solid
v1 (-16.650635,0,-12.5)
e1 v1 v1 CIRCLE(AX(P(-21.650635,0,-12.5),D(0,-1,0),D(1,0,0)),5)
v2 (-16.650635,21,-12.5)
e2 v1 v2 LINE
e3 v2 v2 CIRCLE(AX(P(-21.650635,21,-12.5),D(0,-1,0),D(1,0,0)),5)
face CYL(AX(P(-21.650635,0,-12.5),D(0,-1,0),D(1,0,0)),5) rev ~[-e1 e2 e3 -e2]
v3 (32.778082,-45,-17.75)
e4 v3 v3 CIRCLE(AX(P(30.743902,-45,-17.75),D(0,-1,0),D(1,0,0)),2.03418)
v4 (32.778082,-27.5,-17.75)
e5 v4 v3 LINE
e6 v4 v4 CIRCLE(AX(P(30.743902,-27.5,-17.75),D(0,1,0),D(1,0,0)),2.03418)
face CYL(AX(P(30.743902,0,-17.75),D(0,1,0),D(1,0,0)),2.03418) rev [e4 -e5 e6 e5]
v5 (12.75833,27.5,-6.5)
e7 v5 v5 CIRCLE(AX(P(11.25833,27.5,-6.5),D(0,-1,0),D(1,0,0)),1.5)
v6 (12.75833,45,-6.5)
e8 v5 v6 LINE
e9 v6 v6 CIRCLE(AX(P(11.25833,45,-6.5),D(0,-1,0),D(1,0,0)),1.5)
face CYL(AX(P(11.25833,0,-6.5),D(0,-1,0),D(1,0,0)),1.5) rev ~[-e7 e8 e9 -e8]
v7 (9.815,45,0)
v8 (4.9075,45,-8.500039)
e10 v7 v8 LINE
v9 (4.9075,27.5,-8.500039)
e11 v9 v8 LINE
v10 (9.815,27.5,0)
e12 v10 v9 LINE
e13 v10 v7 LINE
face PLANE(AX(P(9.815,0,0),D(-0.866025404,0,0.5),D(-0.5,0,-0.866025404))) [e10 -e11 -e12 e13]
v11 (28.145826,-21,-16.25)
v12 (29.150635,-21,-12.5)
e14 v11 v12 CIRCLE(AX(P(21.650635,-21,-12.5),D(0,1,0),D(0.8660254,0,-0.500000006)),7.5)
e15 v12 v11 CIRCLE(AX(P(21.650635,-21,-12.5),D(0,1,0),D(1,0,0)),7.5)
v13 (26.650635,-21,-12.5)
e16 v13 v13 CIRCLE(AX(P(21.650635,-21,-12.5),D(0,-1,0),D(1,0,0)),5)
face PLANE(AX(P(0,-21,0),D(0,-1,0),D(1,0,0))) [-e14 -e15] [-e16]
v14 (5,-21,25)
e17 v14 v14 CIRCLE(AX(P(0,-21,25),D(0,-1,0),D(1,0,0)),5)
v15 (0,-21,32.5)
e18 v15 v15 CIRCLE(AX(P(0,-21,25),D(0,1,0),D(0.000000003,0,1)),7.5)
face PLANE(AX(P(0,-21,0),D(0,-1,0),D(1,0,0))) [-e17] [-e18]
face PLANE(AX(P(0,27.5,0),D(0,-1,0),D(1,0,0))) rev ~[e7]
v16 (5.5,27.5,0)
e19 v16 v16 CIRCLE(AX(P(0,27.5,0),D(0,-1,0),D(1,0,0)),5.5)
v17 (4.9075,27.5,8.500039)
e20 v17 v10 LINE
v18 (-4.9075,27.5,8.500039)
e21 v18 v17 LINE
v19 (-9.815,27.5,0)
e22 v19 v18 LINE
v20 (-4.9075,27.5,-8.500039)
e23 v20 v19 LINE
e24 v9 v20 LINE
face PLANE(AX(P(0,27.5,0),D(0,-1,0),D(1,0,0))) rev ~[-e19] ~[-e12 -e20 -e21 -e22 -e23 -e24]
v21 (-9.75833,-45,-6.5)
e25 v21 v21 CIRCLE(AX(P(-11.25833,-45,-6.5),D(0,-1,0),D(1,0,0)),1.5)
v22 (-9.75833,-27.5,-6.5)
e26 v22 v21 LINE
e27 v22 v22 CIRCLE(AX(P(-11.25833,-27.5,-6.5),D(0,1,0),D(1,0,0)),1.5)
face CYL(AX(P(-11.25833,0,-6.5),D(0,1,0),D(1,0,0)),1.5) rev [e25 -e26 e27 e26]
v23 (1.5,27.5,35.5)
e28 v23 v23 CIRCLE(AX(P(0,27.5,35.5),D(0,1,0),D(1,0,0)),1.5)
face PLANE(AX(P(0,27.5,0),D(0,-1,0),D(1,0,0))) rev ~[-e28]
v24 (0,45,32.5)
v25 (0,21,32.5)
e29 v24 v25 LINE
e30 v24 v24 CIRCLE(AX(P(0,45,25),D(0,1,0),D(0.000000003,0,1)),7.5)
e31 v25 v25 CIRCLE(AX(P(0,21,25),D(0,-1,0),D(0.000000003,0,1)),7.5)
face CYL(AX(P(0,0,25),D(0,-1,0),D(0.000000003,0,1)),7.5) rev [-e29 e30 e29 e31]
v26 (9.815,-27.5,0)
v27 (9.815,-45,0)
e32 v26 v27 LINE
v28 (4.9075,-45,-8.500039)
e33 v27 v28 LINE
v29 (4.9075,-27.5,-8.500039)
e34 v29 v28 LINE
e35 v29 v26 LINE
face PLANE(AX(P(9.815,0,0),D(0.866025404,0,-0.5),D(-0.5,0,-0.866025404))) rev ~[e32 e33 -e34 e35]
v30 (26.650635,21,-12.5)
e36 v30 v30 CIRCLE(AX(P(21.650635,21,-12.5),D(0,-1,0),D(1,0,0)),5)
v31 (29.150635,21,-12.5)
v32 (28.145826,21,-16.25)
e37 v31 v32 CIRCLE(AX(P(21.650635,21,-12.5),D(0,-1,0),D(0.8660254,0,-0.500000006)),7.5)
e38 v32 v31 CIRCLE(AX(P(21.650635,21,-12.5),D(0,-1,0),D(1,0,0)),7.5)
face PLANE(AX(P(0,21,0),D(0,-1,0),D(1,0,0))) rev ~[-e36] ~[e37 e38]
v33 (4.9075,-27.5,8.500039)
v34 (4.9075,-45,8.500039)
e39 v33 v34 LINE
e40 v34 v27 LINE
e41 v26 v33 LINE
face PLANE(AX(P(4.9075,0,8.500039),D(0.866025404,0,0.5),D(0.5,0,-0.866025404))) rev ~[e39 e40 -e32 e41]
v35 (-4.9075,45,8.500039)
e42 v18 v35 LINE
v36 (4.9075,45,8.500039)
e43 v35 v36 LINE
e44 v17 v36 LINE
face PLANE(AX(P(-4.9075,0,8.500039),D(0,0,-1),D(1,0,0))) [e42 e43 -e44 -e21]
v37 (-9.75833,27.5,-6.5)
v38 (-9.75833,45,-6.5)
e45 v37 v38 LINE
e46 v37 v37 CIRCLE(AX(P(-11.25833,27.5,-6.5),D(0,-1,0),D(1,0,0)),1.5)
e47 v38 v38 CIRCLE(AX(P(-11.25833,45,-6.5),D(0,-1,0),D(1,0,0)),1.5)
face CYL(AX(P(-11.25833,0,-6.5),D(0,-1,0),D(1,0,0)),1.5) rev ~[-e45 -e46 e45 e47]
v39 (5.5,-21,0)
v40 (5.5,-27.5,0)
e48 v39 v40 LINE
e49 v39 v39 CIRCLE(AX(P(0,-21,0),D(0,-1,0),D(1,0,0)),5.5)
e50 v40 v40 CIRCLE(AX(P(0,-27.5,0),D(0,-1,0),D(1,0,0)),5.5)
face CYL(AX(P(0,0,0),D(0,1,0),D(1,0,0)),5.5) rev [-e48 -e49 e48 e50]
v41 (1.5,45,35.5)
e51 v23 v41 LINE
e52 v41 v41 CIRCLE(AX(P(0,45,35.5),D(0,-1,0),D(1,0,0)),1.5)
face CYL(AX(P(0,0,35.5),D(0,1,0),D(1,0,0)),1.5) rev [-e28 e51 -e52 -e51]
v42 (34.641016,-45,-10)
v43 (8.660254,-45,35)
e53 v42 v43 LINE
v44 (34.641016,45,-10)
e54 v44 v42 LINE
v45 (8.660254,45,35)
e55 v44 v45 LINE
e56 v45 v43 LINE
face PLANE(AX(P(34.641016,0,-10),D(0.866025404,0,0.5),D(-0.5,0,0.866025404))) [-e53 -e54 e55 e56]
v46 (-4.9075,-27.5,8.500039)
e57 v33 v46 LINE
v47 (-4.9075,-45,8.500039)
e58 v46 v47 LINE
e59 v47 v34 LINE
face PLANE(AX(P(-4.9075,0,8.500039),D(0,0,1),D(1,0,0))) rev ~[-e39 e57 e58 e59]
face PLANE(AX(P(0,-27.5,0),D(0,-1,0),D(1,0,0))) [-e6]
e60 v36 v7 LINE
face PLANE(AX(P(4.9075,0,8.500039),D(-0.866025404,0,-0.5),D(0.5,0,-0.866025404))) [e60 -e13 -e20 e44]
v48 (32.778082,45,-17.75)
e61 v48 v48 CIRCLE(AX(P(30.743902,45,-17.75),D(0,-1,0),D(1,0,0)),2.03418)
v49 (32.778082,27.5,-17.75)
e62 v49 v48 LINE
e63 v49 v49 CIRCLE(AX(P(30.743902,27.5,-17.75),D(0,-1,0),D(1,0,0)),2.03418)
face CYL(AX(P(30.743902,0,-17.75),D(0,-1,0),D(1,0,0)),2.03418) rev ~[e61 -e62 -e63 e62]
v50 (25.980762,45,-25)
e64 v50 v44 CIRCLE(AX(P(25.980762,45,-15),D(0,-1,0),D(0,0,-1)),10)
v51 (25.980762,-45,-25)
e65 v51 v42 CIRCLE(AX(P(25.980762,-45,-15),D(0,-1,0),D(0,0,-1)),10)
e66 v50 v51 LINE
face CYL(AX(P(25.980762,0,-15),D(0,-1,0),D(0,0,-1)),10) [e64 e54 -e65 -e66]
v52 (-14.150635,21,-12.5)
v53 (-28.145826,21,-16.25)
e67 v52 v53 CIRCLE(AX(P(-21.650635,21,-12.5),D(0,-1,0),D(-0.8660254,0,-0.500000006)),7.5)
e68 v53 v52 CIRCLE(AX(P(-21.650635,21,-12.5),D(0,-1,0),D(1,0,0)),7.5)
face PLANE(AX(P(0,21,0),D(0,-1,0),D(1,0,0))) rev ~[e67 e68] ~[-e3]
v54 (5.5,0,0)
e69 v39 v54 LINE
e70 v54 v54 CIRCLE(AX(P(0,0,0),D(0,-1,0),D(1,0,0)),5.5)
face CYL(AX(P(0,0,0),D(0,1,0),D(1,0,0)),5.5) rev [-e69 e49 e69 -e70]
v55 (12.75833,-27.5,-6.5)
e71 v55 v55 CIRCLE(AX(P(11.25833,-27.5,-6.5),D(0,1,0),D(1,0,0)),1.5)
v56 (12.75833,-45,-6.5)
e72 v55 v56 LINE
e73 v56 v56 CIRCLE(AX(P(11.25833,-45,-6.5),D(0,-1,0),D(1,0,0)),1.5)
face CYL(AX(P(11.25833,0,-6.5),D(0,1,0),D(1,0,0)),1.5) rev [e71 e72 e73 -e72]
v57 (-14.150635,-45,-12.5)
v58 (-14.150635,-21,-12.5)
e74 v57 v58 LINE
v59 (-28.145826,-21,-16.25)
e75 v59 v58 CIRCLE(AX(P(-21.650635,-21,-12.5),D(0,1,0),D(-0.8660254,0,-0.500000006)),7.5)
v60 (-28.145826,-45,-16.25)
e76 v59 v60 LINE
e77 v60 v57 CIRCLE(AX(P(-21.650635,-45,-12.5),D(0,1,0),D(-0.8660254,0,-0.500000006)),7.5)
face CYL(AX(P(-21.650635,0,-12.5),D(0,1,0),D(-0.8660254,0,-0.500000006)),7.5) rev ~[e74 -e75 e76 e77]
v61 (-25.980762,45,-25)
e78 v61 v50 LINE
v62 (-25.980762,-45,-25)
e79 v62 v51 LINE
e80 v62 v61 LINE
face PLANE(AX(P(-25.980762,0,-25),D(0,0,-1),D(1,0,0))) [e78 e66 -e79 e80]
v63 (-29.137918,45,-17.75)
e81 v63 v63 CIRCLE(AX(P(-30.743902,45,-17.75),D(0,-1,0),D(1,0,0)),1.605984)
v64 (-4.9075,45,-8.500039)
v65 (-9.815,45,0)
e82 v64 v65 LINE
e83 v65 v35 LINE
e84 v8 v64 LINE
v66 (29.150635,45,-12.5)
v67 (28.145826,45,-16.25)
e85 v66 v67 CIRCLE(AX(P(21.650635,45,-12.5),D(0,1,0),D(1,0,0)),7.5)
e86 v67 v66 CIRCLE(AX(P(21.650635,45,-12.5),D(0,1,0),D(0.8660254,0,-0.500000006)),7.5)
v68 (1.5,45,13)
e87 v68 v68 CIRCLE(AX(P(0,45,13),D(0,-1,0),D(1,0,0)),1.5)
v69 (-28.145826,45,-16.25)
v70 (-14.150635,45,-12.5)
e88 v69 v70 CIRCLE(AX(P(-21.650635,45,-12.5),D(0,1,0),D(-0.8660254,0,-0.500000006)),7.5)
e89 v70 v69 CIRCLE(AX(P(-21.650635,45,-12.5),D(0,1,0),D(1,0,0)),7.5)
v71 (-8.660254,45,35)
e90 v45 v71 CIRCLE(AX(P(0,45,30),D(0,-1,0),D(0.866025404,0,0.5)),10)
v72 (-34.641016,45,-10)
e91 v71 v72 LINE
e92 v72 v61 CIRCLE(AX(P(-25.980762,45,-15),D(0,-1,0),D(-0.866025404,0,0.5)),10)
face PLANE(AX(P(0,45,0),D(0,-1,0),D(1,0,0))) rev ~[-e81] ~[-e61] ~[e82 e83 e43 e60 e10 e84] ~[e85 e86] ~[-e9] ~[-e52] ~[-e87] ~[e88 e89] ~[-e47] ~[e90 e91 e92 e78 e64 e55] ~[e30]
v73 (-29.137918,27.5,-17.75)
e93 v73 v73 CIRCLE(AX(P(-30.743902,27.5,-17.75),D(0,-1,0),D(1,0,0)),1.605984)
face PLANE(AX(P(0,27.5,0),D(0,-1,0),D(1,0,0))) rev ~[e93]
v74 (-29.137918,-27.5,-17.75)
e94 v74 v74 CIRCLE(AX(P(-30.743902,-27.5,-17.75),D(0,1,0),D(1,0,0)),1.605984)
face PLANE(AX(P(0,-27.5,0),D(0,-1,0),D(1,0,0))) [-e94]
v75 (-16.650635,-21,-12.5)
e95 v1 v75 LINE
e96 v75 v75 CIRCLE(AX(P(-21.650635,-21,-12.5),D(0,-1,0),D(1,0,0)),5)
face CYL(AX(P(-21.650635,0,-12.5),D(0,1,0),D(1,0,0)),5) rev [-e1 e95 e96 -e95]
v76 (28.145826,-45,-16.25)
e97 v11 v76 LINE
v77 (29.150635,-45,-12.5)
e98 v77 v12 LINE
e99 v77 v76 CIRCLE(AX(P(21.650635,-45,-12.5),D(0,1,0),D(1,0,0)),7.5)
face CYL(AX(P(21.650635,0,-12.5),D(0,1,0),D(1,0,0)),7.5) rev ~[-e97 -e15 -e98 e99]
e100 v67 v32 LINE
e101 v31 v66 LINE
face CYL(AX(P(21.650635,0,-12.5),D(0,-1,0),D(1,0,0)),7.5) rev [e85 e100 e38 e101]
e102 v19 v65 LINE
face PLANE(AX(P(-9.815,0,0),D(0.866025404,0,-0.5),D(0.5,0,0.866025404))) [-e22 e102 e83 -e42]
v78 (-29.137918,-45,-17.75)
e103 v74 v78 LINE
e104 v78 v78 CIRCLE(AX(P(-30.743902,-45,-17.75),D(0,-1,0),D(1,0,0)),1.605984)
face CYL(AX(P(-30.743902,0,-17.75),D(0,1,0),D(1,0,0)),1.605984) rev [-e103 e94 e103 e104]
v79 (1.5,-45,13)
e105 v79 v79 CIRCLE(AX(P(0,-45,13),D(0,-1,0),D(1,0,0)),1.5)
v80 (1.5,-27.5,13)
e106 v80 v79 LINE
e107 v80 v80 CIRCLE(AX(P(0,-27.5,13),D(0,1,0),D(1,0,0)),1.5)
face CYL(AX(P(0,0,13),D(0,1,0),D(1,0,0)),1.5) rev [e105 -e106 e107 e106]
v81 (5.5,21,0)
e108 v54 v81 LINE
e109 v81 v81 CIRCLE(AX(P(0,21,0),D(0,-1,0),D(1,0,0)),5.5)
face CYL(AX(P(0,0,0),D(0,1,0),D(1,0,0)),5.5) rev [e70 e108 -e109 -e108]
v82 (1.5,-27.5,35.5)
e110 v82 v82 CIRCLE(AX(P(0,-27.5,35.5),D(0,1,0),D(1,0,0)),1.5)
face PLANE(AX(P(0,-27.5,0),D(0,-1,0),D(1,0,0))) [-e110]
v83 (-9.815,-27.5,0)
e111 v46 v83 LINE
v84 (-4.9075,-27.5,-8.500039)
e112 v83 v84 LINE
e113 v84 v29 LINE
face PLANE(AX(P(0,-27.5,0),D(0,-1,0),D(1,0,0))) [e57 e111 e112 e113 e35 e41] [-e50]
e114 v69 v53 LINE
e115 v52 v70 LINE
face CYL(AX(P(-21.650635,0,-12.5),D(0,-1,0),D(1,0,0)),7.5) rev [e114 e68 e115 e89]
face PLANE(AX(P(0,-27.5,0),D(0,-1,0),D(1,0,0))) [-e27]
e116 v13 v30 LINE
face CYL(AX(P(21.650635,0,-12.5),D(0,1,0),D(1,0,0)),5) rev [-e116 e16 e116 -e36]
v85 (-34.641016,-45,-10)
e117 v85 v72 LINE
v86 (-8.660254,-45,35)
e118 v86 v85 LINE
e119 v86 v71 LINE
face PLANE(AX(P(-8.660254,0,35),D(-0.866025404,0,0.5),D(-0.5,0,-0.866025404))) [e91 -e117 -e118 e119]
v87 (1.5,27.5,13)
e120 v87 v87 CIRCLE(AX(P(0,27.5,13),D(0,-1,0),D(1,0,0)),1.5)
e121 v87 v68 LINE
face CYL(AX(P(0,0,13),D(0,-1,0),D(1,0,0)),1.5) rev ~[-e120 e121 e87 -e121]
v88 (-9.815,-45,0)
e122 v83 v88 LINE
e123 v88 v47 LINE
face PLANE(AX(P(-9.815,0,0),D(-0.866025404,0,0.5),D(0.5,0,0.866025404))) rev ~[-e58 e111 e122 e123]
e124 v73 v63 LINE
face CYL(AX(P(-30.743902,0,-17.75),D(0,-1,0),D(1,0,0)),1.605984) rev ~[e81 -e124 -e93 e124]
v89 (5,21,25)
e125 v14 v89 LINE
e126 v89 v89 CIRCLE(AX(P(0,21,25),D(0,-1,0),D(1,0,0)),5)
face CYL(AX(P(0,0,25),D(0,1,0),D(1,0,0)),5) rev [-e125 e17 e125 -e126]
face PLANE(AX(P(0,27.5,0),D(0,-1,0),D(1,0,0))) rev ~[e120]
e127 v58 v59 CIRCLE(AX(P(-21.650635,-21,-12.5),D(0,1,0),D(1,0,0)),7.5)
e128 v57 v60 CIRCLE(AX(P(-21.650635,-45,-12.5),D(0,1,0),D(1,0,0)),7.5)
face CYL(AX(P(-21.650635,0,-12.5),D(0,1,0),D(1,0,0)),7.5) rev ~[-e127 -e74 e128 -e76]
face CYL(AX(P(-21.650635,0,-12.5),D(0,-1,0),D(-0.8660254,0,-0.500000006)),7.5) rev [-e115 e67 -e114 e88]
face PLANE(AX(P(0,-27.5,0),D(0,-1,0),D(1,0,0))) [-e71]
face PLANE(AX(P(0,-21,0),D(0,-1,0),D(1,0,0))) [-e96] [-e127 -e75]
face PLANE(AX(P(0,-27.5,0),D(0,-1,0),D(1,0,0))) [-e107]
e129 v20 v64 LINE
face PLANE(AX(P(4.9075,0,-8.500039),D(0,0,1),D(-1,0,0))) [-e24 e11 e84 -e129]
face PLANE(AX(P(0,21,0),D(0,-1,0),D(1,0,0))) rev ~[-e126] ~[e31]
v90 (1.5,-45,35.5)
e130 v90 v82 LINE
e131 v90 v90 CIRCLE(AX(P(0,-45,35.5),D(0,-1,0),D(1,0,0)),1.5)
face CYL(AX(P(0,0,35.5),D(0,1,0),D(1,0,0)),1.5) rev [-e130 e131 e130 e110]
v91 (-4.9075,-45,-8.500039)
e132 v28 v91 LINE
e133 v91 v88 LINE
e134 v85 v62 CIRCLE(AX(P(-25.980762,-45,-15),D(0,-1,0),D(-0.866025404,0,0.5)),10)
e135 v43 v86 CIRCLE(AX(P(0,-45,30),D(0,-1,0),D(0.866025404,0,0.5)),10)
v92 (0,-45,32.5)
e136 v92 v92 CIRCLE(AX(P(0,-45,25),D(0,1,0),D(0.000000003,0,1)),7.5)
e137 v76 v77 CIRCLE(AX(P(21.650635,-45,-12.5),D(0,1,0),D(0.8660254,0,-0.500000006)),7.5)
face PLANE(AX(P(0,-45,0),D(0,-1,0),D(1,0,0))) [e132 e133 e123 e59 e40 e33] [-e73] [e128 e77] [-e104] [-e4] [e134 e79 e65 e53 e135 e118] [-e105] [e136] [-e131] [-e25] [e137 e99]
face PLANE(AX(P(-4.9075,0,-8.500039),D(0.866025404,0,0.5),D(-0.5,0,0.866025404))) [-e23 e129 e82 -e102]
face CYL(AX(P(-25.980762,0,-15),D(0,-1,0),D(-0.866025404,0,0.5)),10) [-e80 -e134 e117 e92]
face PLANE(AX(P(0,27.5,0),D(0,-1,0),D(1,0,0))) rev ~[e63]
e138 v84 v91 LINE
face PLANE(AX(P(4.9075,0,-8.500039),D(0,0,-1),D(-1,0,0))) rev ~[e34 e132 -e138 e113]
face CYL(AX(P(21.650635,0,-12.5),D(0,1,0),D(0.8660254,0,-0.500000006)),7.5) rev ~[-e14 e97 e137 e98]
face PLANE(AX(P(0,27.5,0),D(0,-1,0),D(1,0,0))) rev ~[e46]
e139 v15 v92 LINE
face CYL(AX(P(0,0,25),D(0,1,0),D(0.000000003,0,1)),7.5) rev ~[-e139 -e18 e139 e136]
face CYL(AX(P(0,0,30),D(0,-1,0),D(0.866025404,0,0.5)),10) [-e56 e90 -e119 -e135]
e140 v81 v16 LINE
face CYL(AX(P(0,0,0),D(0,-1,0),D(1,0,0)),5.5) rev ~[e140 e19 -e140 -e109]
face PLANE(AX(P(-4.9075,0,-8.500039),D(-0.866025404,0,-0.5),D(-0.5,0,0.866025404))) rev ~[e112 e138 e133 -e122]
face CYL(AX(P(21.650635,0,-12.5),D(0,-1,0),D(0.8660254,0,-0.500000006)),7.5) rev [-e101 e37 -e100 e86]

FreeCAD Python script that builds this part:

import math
import FreeCAD as App
import Part
import Sketcher
from FreeCAD import Vector
Q = App.Units.Quantity


def add_polygon(sketch, points):
    """Adds a closed chain of lines whose ends are joined by coincident constraints."""
    first, n = sketch.GeometryCount, len(points)
    for a, b in zip(points, points[1:] + points[:1]):
        sketch.addGeometry(Part.LineSegment(App.Vector(*a, 0), App.Vector(*b, 0)), False)
    for i in range(n):
        sketch.addConstraint(Sketcher.Constraint("Coincident", first + i, 2, first + (i + 1) % n, 1))

doc = App.newDocument("Part")
params = doc.addObject("Spreadsheet::Sheet", "Params")
for row, (alias, value) in enumerate([
    ("sketch1_diameter", "10 mm"),
    ("sketch1_diameter2", "11 mm"),
    ("sketch1_radius", "10 mm"),
    ("sketch1_radius2", "3 mm"),
    ("pad1_length", "42 mm"),
    ("sketch2_diameter", "11 mm"),
    ("sketch2_diameter2", "15 mm"),
    ("sketch2_radius", "10 mm"),
    ("pad2_length", "55 mm"),
    ("sketch3_diameter", "3 mm"),
    ("sketch3_diameter2", "15 mm"),
    ("sketch3_radius", "10 mm"),
    ("pad3_length", "90 mm"),
], start=1):
    params.set(f"A{row}", alias)
    params.set(f"B{row}", "=" + value)
    params.setAlias(f"B{row}", alias)

body = doc.addObject("PartDesign::Body", "Body")

# Sketch on XZ plane
sketch1 = body.newObject("Sketcher::SketchObject", "Sketch")
sketch1.AttachmentSupport = (doc.getObject("XZ_Plane"), [""])
sketch1.MapMode = "FlatFace"
sketch1.addGeometry([
    Part.LineSegment(Vector(-26, -25, 0), Vector(26, -25, 0)),  # 0
    Part.ArcOfCircle(Part.Circle(Vector(26, -15, 0), Vector(0, 0, 1), 10), math.radians(-90), math.radians(30)),  # 1
    Part.LineSegment(Vector(34.6, -10, 0), Vector(8.7, 35, 0)),  # 2
    Part.ArcOfCircle(Part.Circle(Vector(0, 30, 0), Vector(0, 0, 1), 10), math.radians(30), math.radians(150)),  # 3
    Part.LineSegment(Vector(-8.7, 35, 0), Vector(-34.6, -10, 0)),  # 4
    Part.ArcOfCircle(Part.Circle(Vector(-26, -15, 0), Vector(0, 0, 1), 10), math.radians(150), math.radians(270)),  # 5
    Part.ArcOfCircle(Part.Circle(Vector(-30.7, -17.8, 0), Vector(0, 0, 1), 3), math.radians(0), math.radians(30)),  # 6
    Part.ArcOfCircle(Part.Circle(Vector(-30.7, -17.8, 0), Vector(0, 0, 1), 3), math.radians(30), math.radians(360)),  # 7
    Part.Circle(Vector(-21.7, -12.5, 0), Vector(0, 0, 1), 5),  # 8
    Part.ArcOfCircle(Part.Circle(Vector(30.7, -17.8, 0), Vector(0, 0, 1), 3), math.radians(0), math.radians(150)),  # 9
    Part.ArcOfCircle(Part.Circle(Vector(30.7, -17.8, 0), Vector(0, 0, 1), 3), math.radians(150), math.radians(360)),  # 10
    Part.Circle(Vector(21.7, -12.5, 0), Vector(0, 0, 1), 5),  # 11
    Part.Circle(Vector(0, 0, 0), Vector(0, 0, 1), 5.5),  # 12
    Part.ArcOfCircle(Part.Circle(Vector(0, 35.5, 0), Vector(0, 0, 1), 3), math.radians(0), math.radians(270)),  # 13
    Part.ArcOfCircle(Part.Circle(Vector(0, 35.5, 0), Vector(0, 0, 1), 3), math.radians(-90), math.radians(0)),  # 14
    Part.Circle(Vector(0, 25, 0), Vector(0, 0, 1), 5),  # 15
], False)
sketch1.addConstraint([
    Sketcher.Constraint("Tangent", 0, 2, 1, 1),
    Sketcher.Constraint("Tangent", 1, 2, 2, 1),
    Sketcher.Constraint("Tangent", 2, 2, 3, 1),
    Sketcher.Constraint("Tangent", 3, 2, 4, 1),
    Sketcher.Constraint("Tangent", 4, 2, 5, 1),
    Sketcher.Constraint("Tangent", 5, 2, 0, 1),
    Sketcher.Constraint("Tangent", 6, 1, 7, 2),
    Sketcher.Constraint("Coincident", 7, 1, 6, 2),
    Sketcher.Constraint("Tangent", 9, 1, 10, 2),
    Sketcher.Constraint("Coincident", 10, 1, 9, 2),
    Sketcher.Constraint("Tangent", 13, 1, 14, 2),
    Sketcher.Constraint("Coincident", 14, 1, 13, 2),
    Sketcher.Constraint("Horizontal", 0),
    Sketcher.Constraint("Coincident", 12, 3, -1, 1),
    Sketcher.Constraint("Equal", 1, 3),
    Sketcher.Constraint("Equal", 3, 5),
    Sketcher.Constraint("Equal", 7, 9),
    Sketcher.Constraint("Equal", 8, 11),
    Sketcher.Constraint("Equal", 10, 13),
    Sketcher.Constraint("Equal", 11, 15),
    Sketcher.Constraint("Symmetric", 6, 3, 9, 3, -2),
    Sketcher.Constraint("Symmetric", 8, 3, 11, 3, -2),
    Sketcher.Constraint("Symmetric", 2, 2, 3, 2, -2),
    Sketcher.Constraint("PointOnObject", 13, 3, -2),
    Sketcher.Constraint("PointOnObject", 15, 3, -2),
    Sketcher.Constraint("PointOnObject", 14, 1, -2),
    Sketcher.Constraint("Horizontal", 10, 3, 6, 1),
    Sketcher.Constraint("Horizontal", 6, 1, 9, 1),
    Sketcher.Constraint("Horizontal", 7, 1, 10, 1),
    Sketcher.Constraint("Horizontal", 14, 3, 13, 1),
    Sketcher.Constraint("Diameter", 8, Q("10 mm")),
    Sketcher.Constraint("Diameter", 12, Q("11 mm")),
    Sketcher.Constraint("Radius", 1, Q("10 mm")),
    Sketcher.Constraint("Radius", 6, Q("3 mm")),
    Sketcher.Constraint("Angle", 2, Q("120 deg")),
    Sketcher.Constraint("DistanceY", 1, 3, -1, 1, Q("15 mm")),
    Sketcher.Constraint("DistanceY", -1, 1, 3, 3, Q("30 mm")),
    Sketcher.Constraint("DistanceY", -1, 1, 15, 3, Q("25 mm")),
    Sketcher.Constraint("DistanceY", 8, 3, 13, 3, Q("48 mm")),
    Sketcher.Constraint("DistanceY", 8, 3, -1, 1, Q("12.5 mm")),
    Sketcher.Constraint("DistanceY", 6, 1, 7, 1, Q("1.5 mm")),
    Sketcher.Constraint("DistanceY", 6, 3, -1, 1, Q("17.75 mm")),
    Sketcher.Constraint("DistanceX", 6, 3, -1, 1, Q("30.743902 mm")),
    Sketcher.Constraint("DistanceX", 8, 3, 11, 3, Q("43.30127 mm")),
])
sketch1.setExpression("Constraints[30]", "Params.sketch1_diameter")
sketch1.setExpression("Constraints[31]", "Params.sketch1_diameter2")
sketch1.setExpression("Constraints[32]", "Params.sketch1_radius")
sketch1.setExpression("Constraints[33]", "Params.sketch1_radius2")
pad1 = body.newObject("PartDesign::Pad", "Pad")
pad1.Profile = sketch1
pad1.setExpression("Length", "Params.pad1_length")
pad1.Midplane = True

# Sketch on XZ plane
sketch2 = body.newObject("Sketcher::SketchObject", "Sketch001")
sketch2.AttachmentSupport = (doc.getObject("XZ_Plane"), [""])
sketch2.MapMode = "FlatFace"
sketch2.addGeometry([
    Part.LineSegment(Vector(-26, -25, 0), Vector(26, -25, 0)),  # 0
    Part.ArcOfCircle(Part.Circle(Vector(26, -15, 0), Vector(0, 0, 1), 10), math.radians(-90), math.radians(30)),  # 1
    Part.LineSegment(Vector(34.6, -10, 0), Vector(8.7, 35, 0)),  # 2
    Part.ArcOfCircle(Part.Circle(Vector(0, 30, 0), Vector(0, 0, 1), 10), math.radians(30), math.radians(150)),  # 3
    Part.LineSegment(Vector(-8.7, 35, 0), Vector(-34.6, -10, 0)),  # 4
    Part.ArcOfCircle(Part.Circle(Vector(-26, -15, 0), Vector(0, 0, 1), 10), math.radians(150), math.radians(270)),  # 5
    Part.ArcOfCircle(Part.Circle(Vector(-21.7, -12.5, 0), Vector(0, 0, 1), 7.5), math.radians(-150), math.radians(0)),  # 6
    Part.ArcOfCircle(Part.Circle(Vector(-21.7, -12.5, 0), Vector(0, 0, 1), 7.5), math.radians(0), math.radians(210)),  # 7
    Part.Circle(Vector(0, 0, 0), Vector(0, 0, 1), 5.5),  # 8
    Part.ArcOfCircle(Part.Circle(Vector(21.7, -12.5, 0), Vector(0, 0, 1), 7.5), math.radians(-30), math.radians(0)),  # 9
    Part.ArcOfCircle(Part.Circle(Vector(21.7, -12.5, 0), Vector(0, 0, 1), 7.5), math.radians(0), math.radians(330)),  # 10
    Part.Circle(Vector(0, 25, 0), Vector(0, 0, 1), 7.5),  # 11
], False)
sketch2.addConstraint([
    Sketcher.Constraint("Tangent", 0, 2, 1, 1),
    Sketcher.Constraint("Tangent", 1, 2, 2, 1),
    Sketcher.Constraint("Tangent", 2, 2, 3, 1),
    Sketcher.Constraint("Tangent", 3, 2, 4, 1),
    Sketcher.Constraint("Tangent", 4, 2, 5, 1),
    Sketcher.Constraint("Tangent", 5, 2, 0, 1),
    Sketcher.Constraint("Tangent", 6, 1, 7, 2),
    Sketcher.Constraint("Coincident", 7, 1, 6, 2),
    Sketcher.Constraint("Tangent", 9, 1, 10, 2),
    Sketcher.Constraint("Coincident", 10, 1, 9, 2),
    Sketcher.Constraint("Horizontal", 0),
    Sketcher.Constraint("Coincident", 8, 3, -1, 1),
    Sketcher.Constraint("Equal", 1, 3),
    Sketcher.Constraint("Equal", 3, 5),
    Sketcher.Constraint("Equal", 7, 9),
    Sketcher.Constraint("Equal", 10, 11),
    Sketcher.Constraint("Symmetric", 6, 3, 9, 3, -2),
    Sketcher.Constraint("Symmetric", 2, 2, 3, 2, -2),
    Sketcher.Constraint("PointOnObject", 11, 3, -2),
    Sketcher.Constraint("Horizontal", 10, 3, 7, 1),
    Sketcher.Constraint("Horizontal", 6, 1, 9, 1),
    Sketcher.Constraint("Horizontal", 7, 1, 10, 1),
    Sketcher.Constraint("Diameter", 8, Q("11 mm")),
    Sketcher.Constraint("Diameter", 11, Q("15 mm")),
    Sketcher.Constraint("Radius", 1, Q("10 mm")),
    Sketcher.Constraint("Angle", 2, Q("120 deg")),
    Sketcher.Constraint("DistanceY", 1, 3, -1, 1, Q("15 mm")),
    Sketcher.Constraint("DistanceY", -1, 1, 3, 3, Q("30 mm")),
    Sketcher.Constraint("DistanceY", -1, 1, 11, 3, Q("25 mm")),
    Sketcher.Constraint("DistanceY", 6, 3, -1, 1, Q("12.5 mm")),
    Sketcher.Constraint("DistanceY", 6, 1, -1, 1, Q("16.25 mm")),
    Sketcher.Constraint("DistanceX", 6, 3, 9, 3, Q("43.30127 mm")),
])
sketch2.setExpression("Constraints[22]", "Params.sketch2_diameter")
sketch2.setExpression("Constraints[23]", "Params.sketch2_diameter2")
sketch2.setExpression("Constraints[24]", "Params.sketch2_radius")
pad2 = body.newObject("PartDesign::Pad", "Pad001")
pad2.Profile = sketch2
pad2.setExpression("Length", "Params.pad2_length")
pad2.Midplane = True

# Sketch on XZ plane
sketch3 = body.newObject("Sketcher::SketchObject", "Sketch002")
sketch3.AttachmentSupport = (doc.getObject("XZ_Plane"), [""])
sketch3.MapMode = "FlatFace"
sketch3.addGeometry(Part.LineSegment(Vector(-26, -25, 0), Vector(26, -25, 0)), False)  # 0
sketch3.addGeometry(Part.ArcOfCircle(Part.Circle(Vector(26, -15, 0), Vector(0, 0, 1), 10), math.radians(-90), math.radians(30)), False)  # 1
sketch3.addGeometry(Part.LineSegment(Vector(34.6, -10, 0), Vector(8.7, 35, 0)), False)  # 2
sketch3.addGeometry(Part.ArcOfCircle(Part.Circle(Vector(0, 30, 0), Vector(0, 0, 1), 10), math.radians(30), math.radians(150)), False)  # 3
sketch3.addGeometry(Part.LineSegment(Vector(-8.7, 35, 0), Vector(-34.6, -10, 0)), False)  # 4
sketch3.addGeometry(Part.ArcOfCircle(Part.Circle(Vector(-26, -15, 0), Vector(0, 0, 1), 10), math.radians(150), math.radians(270)), False)  # 5
sketch3.addGeometry(Part.Circle(Vector(-30.7, -17.8, 0), Vector(0, 0, 1), 1.6), False)  # 6
sketch3.addGeometry(Part.ArcOfCircle(Part.Circle(Vector(-21.7, -12.5, 0), Vector(0, 0, 1), 7.5), math.radians(-150), math.radians(0)), False)  # 7
sketch3.addGeometry(Part.ArcOfCircle(Part.Circle(Vector(-21.7, -12.5, 0), Vector(0, 0, 1), 7.5), math.radians(0), math.radians(210)), False)  # 8
sketch3.addGeometry(Part.Circle(Vector(-11.3, -6.5, 0), Vector(0, 0, 1), 1.5), False)  # 9
add_polygon(sketch3, [(4.9, -8.5), (-4.9, -8.5), (-9.8, 0), (-4.9, 8.5), (4.9, 8.5), (9.8, 0)])  # lines 10-15
sketch3.addGeometry(Part.Circle(Vector(11.3, -6.5, 0), Vector(0, 0, 1), 1.5), False)  # 16
sketch3.addGeometry(Part.Circle(Vector(30.7, -17.8, 0), Vector(0, 0, 1), 2), False)  # 17
sketch3.addGeometry(Part.ArcOfCircle(Part.Circle(Vector(21.7, -12.5, 0), Vector(0, 0, 1), 7.5), math.radians(-30), math.radians(0)), False)  # 18
sketch3.addGeometry(Part.ArcOfCircle(Part.Circle(Vector(21.7, -12.5, 0), Vector(0, 0, 1), 7.5), math.radians(0), math.radians(330)), False)  # 19
sketch3.addGeometry(Part.Circle(Vector(0, 13, 0), Vector(0, 0, 1), 1.5), False)  # 20
sketch3.addGeometry(Part.Circle(Vector(0, 25, 0), Vector(0, 0, 1), 7.5), False)  # 21
sketch3.addGeometry(Part.Circle(Vector(0, 35.5, 0), Vector(0, 0, 1), 1.5), False)  # 22
sketch3.addConstraint([
    Sketcher.Constraint("Tangent", 0, 2, 1, 1),
    Sketcher.Constraint("Tangent", 1, 2, 2, 1),
    Sketcher.Constraint("Tangent", 2, 2, 3, 1),
    Sketcher.Constraint("Tangent", 3, 2, 4, 1),
    Sketcher.Constraint("Tangent", 4, 2, 5, 1),
    Sketcher.Constraint("Tangent", 5, 2, 0, 1),
    Sketcher.Constraint("Tangent", 7, 1, 8, 2),
    Sketcher.Constraint("Coincident", 8, 1, 7, 2),
    Sketcher.Constraint("Tangent", 18, 1, 19, 2),
    Sketcher.Constraint("Coincident", 19, 1, 18, 2),
    Sketcher.Constraint("Horizontal", 0),
    Sketcher.Constraint("Horizontal", 10),
    Sketcher.Constraint("Horizontal", 13),
    Sketcher.Constraint("Equal", 1, 3),
    Sketcher.Constraint("Equal", 3, 5),
    Sketcher.Constraint("Equal", 9, 16),
    Sketcher.Constraint("Equal", 8, 18),
    Sketcher.Constraint("Equal", 16, 20),
    Sketcher.Constraint("Equal", 19, 21),
    Sketcher.Constraint("Equal", 20, 22),
    Sketcher.Constraint("Symmetric", 10, 2, 13, 2, -1, 1),
    Sketcher.Constraint("Symmetric", 11, 2, 14, 2, -1, 1),
    Sketcher.Constraint("Symmetric", 9, 3, 16, 3, -2),
    Sketcher.Constraint("Symmetric", 6, 3, 17, 3, -2),
    Sketcher.Constraint("Symmetric", 7, 3, 18, 3, -2),
    Sketcher.Constraint("Symmetric", 2, 2, 3, 2, -2),
    Sketcher.Constraint("PointOnObject", 20, 3, -2),
    Sketcher.Constraint("PointOnObject", 21, 3, -2),
    Sketcher.Constraint("PointOnObject", 22, 3, -2),
    Sketcher.Constraint("PointOnObject", 11, 2, -1),
    Sketcher.Constraint("Parallel", 2, 11),
    Sketcher.Constraint("Parallel", 4, 12),
    Sketcher.Constraint("Parallel", 12, 15),
    Sketcher.Constraint("Horizontal", 19, 3, 8, 1),
    Sketcher.Constraint("Horizontal", 7, 1, 18, 1),
    Sketcher.Constraint("Horizontal", 8, 1, 19, 1),
    Sketcher.Constraint("Diameter", 9, Q("3 mm")),
    Sketcher.Constraint("Diameter", 21, Q("15 mm")),
    Sketcher.Constraint("Radius", 1, Q("10 mm")),
    Sketcher.Constraint("Angle", 2, Q("120 deg")),
    Sketcher.Constraint("DistanceY", 1, 3, -1, 1, Q("15 mm")),
    Sketcher.Constraint("DistanceY", -1, 1, 3, 3, Q("30 mm")),
    Sketcher.Constraint("DistanceY", -1, 1, 20, 3, Q("13 mm")),
    Sketcher.Constraint("DistanceY", -1, 1, 21, 3, Q("25 mm")),
    Sketcher.Constraint("DistanceY", 7, 3, 9, 3, Q("6 mm")),
    Sketcher.Constraint("DistanceY", 9, 3, 22, 3, Q("42 mm")),
    Sketcher.Constraint("DistanceY", 7, 3, -1, 1, Q("12.5 mm")),
    Sketcher.Constraint("DistanceY", 6, 3, 7, 1, Q("1.5 mm")),
    Sketcher.Constraint("Diameter", 17, Q("4.068359 mm")),
    Sketcher.Constraint("DistanceX", 10, 2, 10, 1, Q("9.815 mm")),
    Sketcher.Constraint("DistanceY", 6, 3, -1, 1, Q("17.75 mm")),
    Sketcher.Constraint("Distance", 11, Q("9.815 mm")),
    Sketcher.Constraint("Diameter", 6, Q("3.211967 mm")),
    Sketcher.Constraint("DistanceX", 6, 3, -1, 1, Q("30.743902 mm")),
    Sketcher.Constraint("DistanceX", 9, 3, -1, 1, Q("11.25833 mm")),
    Sketcher.Constraint("DistanceX", 7, 3, 18, 3, Q("43.30127 mm")),
])
sketch3.setExpression("Constraints[42]", "Params.sketch3_diameter")
sketch3.setExpression("Constraints[43]", "Params.sketch3_diameter2")
sketch3.setExpression("Constraints[44]", "Params.sketch3_radius")
pad3 = body.newObject("PartDesign::Pad", "Pad002")
pad3.Profile = sketch3
pad3.setExpression("Length", "Params.pad3_length")
pad3.Midplane = True

doc.recompute()
